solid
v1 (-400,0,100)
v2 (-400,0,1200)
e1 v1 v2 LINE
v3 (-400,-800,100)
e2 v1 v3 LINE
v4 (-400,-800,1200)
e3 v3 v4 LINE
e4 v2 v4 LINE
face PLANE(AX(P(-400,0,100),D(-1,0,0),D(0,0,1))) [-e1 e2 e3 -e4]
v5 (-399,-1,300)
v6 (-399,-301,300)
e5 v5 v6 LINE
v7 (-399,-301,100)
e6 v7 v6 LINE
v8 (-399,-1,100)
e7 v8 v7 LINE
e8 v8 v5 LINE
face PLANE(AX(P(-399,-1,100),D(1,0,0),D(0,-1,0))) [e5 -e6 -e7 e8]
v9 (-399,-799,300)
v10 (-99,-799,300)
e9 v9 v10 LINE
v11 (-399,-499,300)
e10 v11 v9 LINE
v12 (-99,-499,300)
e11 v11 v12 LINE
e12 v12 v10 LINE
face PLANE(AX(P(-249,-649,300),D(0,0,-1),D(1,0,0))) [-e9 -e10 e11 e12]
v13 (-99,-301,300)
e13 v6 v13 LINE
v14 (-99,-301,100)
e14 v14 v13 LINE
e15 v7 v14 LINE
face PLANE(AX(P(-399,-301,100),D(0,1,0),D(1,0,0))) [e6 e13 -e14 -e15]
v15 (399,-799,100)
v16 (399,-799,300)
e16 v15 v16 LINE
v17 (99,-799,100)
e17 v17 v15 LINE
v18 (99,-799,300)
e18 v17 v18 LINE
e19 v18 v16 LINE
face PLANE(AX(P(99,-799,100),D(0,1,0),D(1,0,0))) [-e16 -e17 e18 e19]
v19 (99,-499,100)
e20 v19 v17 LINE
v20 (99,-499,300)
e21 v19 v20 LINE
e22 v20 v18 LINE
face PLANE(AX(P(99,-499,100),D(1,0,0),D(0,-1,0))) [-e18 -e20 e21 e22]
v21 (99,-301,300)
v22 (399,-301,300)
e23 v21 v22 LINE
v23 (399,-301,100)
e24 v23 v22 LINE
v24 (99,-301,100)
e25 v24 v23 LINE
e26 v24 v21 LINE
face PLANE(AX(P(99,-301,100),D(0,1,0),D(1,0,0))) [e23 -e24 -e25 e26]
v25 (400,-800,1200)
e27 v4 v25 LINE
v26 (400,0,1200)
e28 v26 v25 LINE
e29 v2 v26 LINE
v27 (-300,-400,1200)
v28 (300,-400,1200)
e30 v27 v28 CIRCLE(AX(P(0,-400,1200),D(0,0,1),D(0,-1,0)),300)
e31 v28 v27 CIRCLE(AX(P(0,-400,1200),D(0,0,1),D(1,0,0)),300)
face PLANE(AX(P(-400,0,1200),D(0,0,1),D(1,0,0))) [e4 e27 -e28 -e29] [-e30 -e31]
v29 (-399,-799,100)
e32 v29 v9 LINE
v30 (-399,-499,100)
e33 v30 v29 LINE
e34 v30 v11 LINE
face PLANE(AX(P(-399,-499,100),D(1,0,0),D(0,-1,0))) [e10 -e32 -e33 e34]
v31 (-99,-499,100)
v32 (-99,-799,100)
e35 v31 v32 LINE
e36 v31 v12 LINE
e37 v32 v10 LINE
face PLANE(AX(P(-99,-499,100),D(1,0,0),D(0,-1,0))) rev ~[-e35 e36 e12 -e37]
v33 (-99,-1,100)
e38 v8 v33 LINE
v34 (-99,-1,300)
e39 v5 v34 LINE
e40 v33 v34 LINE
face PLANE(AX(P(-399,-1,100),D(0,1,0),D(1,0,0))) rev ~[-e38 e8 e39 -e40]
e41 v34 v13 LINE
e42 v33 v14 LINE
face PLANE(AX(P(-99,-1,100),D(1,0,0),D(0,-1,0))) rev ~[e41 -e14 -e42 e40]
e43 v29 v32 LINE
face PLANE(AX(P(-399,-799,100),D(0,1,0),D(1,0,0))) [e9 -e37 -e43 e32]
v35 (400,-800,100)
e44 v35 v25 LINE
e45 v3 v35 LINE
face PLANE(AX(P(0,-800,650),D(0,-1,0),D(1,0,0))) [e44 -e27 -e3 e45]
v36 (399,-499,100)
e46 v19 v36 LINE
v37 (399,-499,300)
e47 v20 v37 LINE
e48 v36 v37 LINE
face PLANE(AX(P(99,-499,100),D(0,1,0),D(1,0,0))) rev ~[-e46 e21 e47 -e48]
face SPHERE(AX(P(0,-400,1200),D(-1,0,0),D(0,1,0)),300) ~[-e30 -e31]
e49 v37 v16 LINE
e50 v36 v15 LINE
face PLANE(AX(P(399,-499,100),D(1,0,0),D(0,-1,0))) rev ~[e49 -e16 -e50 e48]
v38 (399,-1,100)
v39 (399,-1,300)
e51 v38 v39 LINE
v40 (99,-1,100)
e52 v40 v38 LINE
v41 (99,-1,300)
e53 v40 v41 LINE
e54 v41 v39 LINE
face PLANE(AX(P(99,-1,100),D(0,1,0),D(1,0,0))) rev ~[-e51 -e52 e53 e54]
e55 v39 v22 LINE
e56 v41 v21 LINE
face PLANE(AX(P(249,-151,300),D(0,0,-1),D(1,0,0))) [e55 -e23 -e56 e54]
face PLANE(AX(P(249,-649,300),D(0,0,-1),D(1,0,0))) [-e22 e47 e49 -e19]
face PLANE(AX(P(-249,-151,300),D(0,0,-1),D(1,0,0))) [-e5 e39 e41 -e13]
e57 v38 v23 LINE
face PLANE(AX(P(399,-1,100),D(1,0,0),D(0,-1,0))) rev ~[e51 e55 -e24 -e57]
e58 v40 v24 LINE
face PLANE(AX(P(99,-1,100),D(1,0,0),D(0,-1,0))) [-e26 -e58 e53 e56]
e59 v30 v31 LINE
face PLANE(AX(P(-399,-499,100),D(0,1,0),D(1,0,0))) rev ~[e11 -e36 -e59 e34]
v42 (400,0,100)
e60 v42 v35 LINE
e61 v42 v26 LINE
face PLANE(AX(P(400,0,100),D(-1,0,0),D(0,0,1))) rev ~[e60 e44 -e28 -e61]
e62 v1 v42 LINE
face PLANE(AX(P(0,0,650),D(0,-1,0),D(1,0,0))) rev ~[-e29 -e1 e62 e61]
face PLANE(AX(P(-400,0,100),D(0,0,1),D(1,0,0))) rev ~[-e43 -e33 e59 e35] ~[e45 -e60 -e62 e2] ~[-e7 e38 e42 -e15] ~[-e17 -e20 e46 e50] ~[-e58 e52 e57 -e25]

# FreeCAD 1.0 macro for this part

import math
import FreeCAD as App
import Part
import Sketcher
from FreeCAD import Vector


def add_polygon(sketch, points):
    """Adds a closed chain of lines whose ends are joined by coincident constraints."""
    first, n = sketch.GeometryCount, len(points)
    for a, b in zip(points, points[1:] + points[:1]):
        sketch.addGeometry(Part.LineSegment(App.Vector(*a, 0), App.Vector(*b, 0)), False)
    for i in range(n):
        sketch.addConstraint(Sketcher.Constraint("Coincident", first + i, 2, first + (i + 1) % n, 1))

doc = App.newDocument("Part")
body = doc.addObject("PartDesign::Body", "Body")

# Sketch on XZ plane
sketch1 = doc.addObject("Sketcher::SketchObject", "Sketch")
body.addObject(sketch1)
sketch1.AttachmentSupport = (doc.XZ_Plane, [""])
sketch1.MapMode = "FlatFace"
add_polygon(sketch1, [(-400, 1200), (-400, 100), (400, 100), (400, 1200)])  # lines 0-3
sketch1.addConstraint([
    Sketcher.Constraint("Vertical", 0),
    Sketcher.Constraint("Horizontal", 1),
    Sketcher.Constraint("Vertical", 2),
    Sketcher.Constraint("Horizontal", 3),
    Sketcher.Constraint("DistanceX", 1, 1, 1, 2, 800.0),
    Sketcher.Constraint("DistanceY", 0, 2, 0, 1, 1100.0),
    Sketcher.Constraint("DistanceX", 0, 2, -1, 1, 400.0),
    Sketcher.Constraint("DistanceY", -1, 1, 0, 2, 100.0),
])
pad1 = doc.addObject("PartDesign::Pad", "Pad")
body.addObject(pad1)
pad1.Profile = sketch1
pad1.Length = 800

# Sketch on XY plane
sketch2 = doc.addObject("Sketcher::SketchObject", "Sketch001")
body.addObject(sketch2)
sketch2.AttachmentSupport = (doc.XY_Plane, [""])
sketch2.MapMode = "FlatFace"
sketch2.AttachmentOffset = App.Placement(Vector(0, 0, 1200), App.Rotation())
sketch2.addGeometry([
    Part.ArcOfCircle(Part.Circle(Vector(0, -400, 0), Vector(0, 0, 1), 300), math.radians(0), math.radians(180)),
    Part.LineSegment(Vector(-300, -400, 0), Vector(300, -400, 0)),
], False)
sketch2.addGeometry(Part.LineSegment(Vector(-300, -400, 0), Vector(300, -400, 0)), True)  # axis
sketch2.addConstraint([
    Sketcher.Constraint("Coincident", 0, 1, 1, 2),
    Sketcher.Constraint("Coincident", 1, 1, 0, 2),
    Sketcher.Constraint("Horizontal", 1),
    Sketcher.Constraint("Horizontal", 2),
    Sketcher.Constraint("Coincident", 2, 1, 1, 1),
    Sketcher.Constraint("PointOnObject", 0, 3, -2),
    Sketcher.Constraint("Equal", 1, 2),
    Sketcher.Constraint("Radius", 0, 300.0),
    Sketcher.Constraint("DistanceY", 0, 3, -1, 1, 400.0),
    Sketcher.Constraint("DistanceY", 1, 1, -1, 1, 400.0),
])
revolution = doc.addObject("PartDesign::Revolution", "Revolution")
body.addObject(revolution)
revolution.Profile = sketch2
revolution.ReferenceAxis = (sketch2, ["Axis0"])
revolution.Angle = 360

# Sketch on XY plane
sketch3 = doc.addObject("Sketcher::SketchObject", "Sketch002")
body.addObject(sketch3)
sketch3.AttachmentSupport = (doc.XY_Plane, [""])
sketch3.MapMode = "FlatFace"
sketch3.AttachmentOffset = App.Placement(Vector(0, 0, 100), App.Rotation())
add_polygon(sketch3, [(-399, -799), (-399, -499), (-99, -499), (-99, -799)])  # lines 0-3
add_polygon(sketch3, [(99, -799), (99, -499), (399, -499), (399, -799)])  # lines 4-7
add_polygon(sketch3, [(99, -301), (99, -1), (399, -1), (399, -301)])  # lines 8-11
add_polygon(sketch3, [(-399, -301), (-399, -1), (-99, -1), (-99, -301)])  # lines 12-15
sketch3.addConstraint([
    Sketcher.Constraint("Vertical", 0),
    Sketcher.Constraint("Horizontal", 1),
    Sketcher.Constraint("Vertical", 2),
    Sketcher.Constraint("Horizontal", 3),
    Sketcher.Constraint("Vertical", 4),
    Sketcher.Constraint("Horizontal", 5),
    Sketcher.Constraint("Vertical", 6),
    Sketcher.Constraint("Horizontal", 7),
    Sketcher.Constraint("Vertical", 8),
    Sketcher.Constraint("Horizontal", 9),
    Sketcher.Constraint("Vertical", 10),
    Sketcher.Constraint("Horizontal", 11),
    Sketcher.Constraint("Vertical", 12),
    Sketcher.Constraint("Horizontal", 13),
    Sketcher.Constraint("Vertical", 14),
    Sketcher.Constraint("Horizontal", 15),
    Sketcher.Constraint("Symmetric", 1, 2, 4, 2, -2),
    Sketcher.Constraint("Symmetric", 3, 2, 6, 2, -2),
    Sketcher.Constraint("Symmetric", 9, 2, 12, 2, -2),
    Sketcher.Constraint("Symmetric", 11, 2, 14, 2, -2),
    Sketcher.Constraint("Vertical", 7, 2, 8, 2),
    Sketcher.Constraint("Vertical", 6, 2, 9, 2),
    Sketcher.Constraint("Equal", 15, 0),
    Sketcher.Constraint("Equal", 6, 8),
    Sketcher.Constraint("DistanceX", 1, 1, 1, 2, 300.0),
    Sketcher.Constraint("DistanceX", 0, 2, -1, 1, 399.0),
    Sketcher.Constraint("DistanceY", 0, 2, -1, 1, 499.0),
    Sketcher.Constraint("DistanceY", 8, 2, -1, 1, 1.0),
])
pocket1 = doc.addObject("PartDesign::Pocket", "Pocket")
body.addObject(pocket1)
pocket1.Profile = sketch3
pocket1.Length = 200
pocket1.Reversed = True

doc.recompute()
